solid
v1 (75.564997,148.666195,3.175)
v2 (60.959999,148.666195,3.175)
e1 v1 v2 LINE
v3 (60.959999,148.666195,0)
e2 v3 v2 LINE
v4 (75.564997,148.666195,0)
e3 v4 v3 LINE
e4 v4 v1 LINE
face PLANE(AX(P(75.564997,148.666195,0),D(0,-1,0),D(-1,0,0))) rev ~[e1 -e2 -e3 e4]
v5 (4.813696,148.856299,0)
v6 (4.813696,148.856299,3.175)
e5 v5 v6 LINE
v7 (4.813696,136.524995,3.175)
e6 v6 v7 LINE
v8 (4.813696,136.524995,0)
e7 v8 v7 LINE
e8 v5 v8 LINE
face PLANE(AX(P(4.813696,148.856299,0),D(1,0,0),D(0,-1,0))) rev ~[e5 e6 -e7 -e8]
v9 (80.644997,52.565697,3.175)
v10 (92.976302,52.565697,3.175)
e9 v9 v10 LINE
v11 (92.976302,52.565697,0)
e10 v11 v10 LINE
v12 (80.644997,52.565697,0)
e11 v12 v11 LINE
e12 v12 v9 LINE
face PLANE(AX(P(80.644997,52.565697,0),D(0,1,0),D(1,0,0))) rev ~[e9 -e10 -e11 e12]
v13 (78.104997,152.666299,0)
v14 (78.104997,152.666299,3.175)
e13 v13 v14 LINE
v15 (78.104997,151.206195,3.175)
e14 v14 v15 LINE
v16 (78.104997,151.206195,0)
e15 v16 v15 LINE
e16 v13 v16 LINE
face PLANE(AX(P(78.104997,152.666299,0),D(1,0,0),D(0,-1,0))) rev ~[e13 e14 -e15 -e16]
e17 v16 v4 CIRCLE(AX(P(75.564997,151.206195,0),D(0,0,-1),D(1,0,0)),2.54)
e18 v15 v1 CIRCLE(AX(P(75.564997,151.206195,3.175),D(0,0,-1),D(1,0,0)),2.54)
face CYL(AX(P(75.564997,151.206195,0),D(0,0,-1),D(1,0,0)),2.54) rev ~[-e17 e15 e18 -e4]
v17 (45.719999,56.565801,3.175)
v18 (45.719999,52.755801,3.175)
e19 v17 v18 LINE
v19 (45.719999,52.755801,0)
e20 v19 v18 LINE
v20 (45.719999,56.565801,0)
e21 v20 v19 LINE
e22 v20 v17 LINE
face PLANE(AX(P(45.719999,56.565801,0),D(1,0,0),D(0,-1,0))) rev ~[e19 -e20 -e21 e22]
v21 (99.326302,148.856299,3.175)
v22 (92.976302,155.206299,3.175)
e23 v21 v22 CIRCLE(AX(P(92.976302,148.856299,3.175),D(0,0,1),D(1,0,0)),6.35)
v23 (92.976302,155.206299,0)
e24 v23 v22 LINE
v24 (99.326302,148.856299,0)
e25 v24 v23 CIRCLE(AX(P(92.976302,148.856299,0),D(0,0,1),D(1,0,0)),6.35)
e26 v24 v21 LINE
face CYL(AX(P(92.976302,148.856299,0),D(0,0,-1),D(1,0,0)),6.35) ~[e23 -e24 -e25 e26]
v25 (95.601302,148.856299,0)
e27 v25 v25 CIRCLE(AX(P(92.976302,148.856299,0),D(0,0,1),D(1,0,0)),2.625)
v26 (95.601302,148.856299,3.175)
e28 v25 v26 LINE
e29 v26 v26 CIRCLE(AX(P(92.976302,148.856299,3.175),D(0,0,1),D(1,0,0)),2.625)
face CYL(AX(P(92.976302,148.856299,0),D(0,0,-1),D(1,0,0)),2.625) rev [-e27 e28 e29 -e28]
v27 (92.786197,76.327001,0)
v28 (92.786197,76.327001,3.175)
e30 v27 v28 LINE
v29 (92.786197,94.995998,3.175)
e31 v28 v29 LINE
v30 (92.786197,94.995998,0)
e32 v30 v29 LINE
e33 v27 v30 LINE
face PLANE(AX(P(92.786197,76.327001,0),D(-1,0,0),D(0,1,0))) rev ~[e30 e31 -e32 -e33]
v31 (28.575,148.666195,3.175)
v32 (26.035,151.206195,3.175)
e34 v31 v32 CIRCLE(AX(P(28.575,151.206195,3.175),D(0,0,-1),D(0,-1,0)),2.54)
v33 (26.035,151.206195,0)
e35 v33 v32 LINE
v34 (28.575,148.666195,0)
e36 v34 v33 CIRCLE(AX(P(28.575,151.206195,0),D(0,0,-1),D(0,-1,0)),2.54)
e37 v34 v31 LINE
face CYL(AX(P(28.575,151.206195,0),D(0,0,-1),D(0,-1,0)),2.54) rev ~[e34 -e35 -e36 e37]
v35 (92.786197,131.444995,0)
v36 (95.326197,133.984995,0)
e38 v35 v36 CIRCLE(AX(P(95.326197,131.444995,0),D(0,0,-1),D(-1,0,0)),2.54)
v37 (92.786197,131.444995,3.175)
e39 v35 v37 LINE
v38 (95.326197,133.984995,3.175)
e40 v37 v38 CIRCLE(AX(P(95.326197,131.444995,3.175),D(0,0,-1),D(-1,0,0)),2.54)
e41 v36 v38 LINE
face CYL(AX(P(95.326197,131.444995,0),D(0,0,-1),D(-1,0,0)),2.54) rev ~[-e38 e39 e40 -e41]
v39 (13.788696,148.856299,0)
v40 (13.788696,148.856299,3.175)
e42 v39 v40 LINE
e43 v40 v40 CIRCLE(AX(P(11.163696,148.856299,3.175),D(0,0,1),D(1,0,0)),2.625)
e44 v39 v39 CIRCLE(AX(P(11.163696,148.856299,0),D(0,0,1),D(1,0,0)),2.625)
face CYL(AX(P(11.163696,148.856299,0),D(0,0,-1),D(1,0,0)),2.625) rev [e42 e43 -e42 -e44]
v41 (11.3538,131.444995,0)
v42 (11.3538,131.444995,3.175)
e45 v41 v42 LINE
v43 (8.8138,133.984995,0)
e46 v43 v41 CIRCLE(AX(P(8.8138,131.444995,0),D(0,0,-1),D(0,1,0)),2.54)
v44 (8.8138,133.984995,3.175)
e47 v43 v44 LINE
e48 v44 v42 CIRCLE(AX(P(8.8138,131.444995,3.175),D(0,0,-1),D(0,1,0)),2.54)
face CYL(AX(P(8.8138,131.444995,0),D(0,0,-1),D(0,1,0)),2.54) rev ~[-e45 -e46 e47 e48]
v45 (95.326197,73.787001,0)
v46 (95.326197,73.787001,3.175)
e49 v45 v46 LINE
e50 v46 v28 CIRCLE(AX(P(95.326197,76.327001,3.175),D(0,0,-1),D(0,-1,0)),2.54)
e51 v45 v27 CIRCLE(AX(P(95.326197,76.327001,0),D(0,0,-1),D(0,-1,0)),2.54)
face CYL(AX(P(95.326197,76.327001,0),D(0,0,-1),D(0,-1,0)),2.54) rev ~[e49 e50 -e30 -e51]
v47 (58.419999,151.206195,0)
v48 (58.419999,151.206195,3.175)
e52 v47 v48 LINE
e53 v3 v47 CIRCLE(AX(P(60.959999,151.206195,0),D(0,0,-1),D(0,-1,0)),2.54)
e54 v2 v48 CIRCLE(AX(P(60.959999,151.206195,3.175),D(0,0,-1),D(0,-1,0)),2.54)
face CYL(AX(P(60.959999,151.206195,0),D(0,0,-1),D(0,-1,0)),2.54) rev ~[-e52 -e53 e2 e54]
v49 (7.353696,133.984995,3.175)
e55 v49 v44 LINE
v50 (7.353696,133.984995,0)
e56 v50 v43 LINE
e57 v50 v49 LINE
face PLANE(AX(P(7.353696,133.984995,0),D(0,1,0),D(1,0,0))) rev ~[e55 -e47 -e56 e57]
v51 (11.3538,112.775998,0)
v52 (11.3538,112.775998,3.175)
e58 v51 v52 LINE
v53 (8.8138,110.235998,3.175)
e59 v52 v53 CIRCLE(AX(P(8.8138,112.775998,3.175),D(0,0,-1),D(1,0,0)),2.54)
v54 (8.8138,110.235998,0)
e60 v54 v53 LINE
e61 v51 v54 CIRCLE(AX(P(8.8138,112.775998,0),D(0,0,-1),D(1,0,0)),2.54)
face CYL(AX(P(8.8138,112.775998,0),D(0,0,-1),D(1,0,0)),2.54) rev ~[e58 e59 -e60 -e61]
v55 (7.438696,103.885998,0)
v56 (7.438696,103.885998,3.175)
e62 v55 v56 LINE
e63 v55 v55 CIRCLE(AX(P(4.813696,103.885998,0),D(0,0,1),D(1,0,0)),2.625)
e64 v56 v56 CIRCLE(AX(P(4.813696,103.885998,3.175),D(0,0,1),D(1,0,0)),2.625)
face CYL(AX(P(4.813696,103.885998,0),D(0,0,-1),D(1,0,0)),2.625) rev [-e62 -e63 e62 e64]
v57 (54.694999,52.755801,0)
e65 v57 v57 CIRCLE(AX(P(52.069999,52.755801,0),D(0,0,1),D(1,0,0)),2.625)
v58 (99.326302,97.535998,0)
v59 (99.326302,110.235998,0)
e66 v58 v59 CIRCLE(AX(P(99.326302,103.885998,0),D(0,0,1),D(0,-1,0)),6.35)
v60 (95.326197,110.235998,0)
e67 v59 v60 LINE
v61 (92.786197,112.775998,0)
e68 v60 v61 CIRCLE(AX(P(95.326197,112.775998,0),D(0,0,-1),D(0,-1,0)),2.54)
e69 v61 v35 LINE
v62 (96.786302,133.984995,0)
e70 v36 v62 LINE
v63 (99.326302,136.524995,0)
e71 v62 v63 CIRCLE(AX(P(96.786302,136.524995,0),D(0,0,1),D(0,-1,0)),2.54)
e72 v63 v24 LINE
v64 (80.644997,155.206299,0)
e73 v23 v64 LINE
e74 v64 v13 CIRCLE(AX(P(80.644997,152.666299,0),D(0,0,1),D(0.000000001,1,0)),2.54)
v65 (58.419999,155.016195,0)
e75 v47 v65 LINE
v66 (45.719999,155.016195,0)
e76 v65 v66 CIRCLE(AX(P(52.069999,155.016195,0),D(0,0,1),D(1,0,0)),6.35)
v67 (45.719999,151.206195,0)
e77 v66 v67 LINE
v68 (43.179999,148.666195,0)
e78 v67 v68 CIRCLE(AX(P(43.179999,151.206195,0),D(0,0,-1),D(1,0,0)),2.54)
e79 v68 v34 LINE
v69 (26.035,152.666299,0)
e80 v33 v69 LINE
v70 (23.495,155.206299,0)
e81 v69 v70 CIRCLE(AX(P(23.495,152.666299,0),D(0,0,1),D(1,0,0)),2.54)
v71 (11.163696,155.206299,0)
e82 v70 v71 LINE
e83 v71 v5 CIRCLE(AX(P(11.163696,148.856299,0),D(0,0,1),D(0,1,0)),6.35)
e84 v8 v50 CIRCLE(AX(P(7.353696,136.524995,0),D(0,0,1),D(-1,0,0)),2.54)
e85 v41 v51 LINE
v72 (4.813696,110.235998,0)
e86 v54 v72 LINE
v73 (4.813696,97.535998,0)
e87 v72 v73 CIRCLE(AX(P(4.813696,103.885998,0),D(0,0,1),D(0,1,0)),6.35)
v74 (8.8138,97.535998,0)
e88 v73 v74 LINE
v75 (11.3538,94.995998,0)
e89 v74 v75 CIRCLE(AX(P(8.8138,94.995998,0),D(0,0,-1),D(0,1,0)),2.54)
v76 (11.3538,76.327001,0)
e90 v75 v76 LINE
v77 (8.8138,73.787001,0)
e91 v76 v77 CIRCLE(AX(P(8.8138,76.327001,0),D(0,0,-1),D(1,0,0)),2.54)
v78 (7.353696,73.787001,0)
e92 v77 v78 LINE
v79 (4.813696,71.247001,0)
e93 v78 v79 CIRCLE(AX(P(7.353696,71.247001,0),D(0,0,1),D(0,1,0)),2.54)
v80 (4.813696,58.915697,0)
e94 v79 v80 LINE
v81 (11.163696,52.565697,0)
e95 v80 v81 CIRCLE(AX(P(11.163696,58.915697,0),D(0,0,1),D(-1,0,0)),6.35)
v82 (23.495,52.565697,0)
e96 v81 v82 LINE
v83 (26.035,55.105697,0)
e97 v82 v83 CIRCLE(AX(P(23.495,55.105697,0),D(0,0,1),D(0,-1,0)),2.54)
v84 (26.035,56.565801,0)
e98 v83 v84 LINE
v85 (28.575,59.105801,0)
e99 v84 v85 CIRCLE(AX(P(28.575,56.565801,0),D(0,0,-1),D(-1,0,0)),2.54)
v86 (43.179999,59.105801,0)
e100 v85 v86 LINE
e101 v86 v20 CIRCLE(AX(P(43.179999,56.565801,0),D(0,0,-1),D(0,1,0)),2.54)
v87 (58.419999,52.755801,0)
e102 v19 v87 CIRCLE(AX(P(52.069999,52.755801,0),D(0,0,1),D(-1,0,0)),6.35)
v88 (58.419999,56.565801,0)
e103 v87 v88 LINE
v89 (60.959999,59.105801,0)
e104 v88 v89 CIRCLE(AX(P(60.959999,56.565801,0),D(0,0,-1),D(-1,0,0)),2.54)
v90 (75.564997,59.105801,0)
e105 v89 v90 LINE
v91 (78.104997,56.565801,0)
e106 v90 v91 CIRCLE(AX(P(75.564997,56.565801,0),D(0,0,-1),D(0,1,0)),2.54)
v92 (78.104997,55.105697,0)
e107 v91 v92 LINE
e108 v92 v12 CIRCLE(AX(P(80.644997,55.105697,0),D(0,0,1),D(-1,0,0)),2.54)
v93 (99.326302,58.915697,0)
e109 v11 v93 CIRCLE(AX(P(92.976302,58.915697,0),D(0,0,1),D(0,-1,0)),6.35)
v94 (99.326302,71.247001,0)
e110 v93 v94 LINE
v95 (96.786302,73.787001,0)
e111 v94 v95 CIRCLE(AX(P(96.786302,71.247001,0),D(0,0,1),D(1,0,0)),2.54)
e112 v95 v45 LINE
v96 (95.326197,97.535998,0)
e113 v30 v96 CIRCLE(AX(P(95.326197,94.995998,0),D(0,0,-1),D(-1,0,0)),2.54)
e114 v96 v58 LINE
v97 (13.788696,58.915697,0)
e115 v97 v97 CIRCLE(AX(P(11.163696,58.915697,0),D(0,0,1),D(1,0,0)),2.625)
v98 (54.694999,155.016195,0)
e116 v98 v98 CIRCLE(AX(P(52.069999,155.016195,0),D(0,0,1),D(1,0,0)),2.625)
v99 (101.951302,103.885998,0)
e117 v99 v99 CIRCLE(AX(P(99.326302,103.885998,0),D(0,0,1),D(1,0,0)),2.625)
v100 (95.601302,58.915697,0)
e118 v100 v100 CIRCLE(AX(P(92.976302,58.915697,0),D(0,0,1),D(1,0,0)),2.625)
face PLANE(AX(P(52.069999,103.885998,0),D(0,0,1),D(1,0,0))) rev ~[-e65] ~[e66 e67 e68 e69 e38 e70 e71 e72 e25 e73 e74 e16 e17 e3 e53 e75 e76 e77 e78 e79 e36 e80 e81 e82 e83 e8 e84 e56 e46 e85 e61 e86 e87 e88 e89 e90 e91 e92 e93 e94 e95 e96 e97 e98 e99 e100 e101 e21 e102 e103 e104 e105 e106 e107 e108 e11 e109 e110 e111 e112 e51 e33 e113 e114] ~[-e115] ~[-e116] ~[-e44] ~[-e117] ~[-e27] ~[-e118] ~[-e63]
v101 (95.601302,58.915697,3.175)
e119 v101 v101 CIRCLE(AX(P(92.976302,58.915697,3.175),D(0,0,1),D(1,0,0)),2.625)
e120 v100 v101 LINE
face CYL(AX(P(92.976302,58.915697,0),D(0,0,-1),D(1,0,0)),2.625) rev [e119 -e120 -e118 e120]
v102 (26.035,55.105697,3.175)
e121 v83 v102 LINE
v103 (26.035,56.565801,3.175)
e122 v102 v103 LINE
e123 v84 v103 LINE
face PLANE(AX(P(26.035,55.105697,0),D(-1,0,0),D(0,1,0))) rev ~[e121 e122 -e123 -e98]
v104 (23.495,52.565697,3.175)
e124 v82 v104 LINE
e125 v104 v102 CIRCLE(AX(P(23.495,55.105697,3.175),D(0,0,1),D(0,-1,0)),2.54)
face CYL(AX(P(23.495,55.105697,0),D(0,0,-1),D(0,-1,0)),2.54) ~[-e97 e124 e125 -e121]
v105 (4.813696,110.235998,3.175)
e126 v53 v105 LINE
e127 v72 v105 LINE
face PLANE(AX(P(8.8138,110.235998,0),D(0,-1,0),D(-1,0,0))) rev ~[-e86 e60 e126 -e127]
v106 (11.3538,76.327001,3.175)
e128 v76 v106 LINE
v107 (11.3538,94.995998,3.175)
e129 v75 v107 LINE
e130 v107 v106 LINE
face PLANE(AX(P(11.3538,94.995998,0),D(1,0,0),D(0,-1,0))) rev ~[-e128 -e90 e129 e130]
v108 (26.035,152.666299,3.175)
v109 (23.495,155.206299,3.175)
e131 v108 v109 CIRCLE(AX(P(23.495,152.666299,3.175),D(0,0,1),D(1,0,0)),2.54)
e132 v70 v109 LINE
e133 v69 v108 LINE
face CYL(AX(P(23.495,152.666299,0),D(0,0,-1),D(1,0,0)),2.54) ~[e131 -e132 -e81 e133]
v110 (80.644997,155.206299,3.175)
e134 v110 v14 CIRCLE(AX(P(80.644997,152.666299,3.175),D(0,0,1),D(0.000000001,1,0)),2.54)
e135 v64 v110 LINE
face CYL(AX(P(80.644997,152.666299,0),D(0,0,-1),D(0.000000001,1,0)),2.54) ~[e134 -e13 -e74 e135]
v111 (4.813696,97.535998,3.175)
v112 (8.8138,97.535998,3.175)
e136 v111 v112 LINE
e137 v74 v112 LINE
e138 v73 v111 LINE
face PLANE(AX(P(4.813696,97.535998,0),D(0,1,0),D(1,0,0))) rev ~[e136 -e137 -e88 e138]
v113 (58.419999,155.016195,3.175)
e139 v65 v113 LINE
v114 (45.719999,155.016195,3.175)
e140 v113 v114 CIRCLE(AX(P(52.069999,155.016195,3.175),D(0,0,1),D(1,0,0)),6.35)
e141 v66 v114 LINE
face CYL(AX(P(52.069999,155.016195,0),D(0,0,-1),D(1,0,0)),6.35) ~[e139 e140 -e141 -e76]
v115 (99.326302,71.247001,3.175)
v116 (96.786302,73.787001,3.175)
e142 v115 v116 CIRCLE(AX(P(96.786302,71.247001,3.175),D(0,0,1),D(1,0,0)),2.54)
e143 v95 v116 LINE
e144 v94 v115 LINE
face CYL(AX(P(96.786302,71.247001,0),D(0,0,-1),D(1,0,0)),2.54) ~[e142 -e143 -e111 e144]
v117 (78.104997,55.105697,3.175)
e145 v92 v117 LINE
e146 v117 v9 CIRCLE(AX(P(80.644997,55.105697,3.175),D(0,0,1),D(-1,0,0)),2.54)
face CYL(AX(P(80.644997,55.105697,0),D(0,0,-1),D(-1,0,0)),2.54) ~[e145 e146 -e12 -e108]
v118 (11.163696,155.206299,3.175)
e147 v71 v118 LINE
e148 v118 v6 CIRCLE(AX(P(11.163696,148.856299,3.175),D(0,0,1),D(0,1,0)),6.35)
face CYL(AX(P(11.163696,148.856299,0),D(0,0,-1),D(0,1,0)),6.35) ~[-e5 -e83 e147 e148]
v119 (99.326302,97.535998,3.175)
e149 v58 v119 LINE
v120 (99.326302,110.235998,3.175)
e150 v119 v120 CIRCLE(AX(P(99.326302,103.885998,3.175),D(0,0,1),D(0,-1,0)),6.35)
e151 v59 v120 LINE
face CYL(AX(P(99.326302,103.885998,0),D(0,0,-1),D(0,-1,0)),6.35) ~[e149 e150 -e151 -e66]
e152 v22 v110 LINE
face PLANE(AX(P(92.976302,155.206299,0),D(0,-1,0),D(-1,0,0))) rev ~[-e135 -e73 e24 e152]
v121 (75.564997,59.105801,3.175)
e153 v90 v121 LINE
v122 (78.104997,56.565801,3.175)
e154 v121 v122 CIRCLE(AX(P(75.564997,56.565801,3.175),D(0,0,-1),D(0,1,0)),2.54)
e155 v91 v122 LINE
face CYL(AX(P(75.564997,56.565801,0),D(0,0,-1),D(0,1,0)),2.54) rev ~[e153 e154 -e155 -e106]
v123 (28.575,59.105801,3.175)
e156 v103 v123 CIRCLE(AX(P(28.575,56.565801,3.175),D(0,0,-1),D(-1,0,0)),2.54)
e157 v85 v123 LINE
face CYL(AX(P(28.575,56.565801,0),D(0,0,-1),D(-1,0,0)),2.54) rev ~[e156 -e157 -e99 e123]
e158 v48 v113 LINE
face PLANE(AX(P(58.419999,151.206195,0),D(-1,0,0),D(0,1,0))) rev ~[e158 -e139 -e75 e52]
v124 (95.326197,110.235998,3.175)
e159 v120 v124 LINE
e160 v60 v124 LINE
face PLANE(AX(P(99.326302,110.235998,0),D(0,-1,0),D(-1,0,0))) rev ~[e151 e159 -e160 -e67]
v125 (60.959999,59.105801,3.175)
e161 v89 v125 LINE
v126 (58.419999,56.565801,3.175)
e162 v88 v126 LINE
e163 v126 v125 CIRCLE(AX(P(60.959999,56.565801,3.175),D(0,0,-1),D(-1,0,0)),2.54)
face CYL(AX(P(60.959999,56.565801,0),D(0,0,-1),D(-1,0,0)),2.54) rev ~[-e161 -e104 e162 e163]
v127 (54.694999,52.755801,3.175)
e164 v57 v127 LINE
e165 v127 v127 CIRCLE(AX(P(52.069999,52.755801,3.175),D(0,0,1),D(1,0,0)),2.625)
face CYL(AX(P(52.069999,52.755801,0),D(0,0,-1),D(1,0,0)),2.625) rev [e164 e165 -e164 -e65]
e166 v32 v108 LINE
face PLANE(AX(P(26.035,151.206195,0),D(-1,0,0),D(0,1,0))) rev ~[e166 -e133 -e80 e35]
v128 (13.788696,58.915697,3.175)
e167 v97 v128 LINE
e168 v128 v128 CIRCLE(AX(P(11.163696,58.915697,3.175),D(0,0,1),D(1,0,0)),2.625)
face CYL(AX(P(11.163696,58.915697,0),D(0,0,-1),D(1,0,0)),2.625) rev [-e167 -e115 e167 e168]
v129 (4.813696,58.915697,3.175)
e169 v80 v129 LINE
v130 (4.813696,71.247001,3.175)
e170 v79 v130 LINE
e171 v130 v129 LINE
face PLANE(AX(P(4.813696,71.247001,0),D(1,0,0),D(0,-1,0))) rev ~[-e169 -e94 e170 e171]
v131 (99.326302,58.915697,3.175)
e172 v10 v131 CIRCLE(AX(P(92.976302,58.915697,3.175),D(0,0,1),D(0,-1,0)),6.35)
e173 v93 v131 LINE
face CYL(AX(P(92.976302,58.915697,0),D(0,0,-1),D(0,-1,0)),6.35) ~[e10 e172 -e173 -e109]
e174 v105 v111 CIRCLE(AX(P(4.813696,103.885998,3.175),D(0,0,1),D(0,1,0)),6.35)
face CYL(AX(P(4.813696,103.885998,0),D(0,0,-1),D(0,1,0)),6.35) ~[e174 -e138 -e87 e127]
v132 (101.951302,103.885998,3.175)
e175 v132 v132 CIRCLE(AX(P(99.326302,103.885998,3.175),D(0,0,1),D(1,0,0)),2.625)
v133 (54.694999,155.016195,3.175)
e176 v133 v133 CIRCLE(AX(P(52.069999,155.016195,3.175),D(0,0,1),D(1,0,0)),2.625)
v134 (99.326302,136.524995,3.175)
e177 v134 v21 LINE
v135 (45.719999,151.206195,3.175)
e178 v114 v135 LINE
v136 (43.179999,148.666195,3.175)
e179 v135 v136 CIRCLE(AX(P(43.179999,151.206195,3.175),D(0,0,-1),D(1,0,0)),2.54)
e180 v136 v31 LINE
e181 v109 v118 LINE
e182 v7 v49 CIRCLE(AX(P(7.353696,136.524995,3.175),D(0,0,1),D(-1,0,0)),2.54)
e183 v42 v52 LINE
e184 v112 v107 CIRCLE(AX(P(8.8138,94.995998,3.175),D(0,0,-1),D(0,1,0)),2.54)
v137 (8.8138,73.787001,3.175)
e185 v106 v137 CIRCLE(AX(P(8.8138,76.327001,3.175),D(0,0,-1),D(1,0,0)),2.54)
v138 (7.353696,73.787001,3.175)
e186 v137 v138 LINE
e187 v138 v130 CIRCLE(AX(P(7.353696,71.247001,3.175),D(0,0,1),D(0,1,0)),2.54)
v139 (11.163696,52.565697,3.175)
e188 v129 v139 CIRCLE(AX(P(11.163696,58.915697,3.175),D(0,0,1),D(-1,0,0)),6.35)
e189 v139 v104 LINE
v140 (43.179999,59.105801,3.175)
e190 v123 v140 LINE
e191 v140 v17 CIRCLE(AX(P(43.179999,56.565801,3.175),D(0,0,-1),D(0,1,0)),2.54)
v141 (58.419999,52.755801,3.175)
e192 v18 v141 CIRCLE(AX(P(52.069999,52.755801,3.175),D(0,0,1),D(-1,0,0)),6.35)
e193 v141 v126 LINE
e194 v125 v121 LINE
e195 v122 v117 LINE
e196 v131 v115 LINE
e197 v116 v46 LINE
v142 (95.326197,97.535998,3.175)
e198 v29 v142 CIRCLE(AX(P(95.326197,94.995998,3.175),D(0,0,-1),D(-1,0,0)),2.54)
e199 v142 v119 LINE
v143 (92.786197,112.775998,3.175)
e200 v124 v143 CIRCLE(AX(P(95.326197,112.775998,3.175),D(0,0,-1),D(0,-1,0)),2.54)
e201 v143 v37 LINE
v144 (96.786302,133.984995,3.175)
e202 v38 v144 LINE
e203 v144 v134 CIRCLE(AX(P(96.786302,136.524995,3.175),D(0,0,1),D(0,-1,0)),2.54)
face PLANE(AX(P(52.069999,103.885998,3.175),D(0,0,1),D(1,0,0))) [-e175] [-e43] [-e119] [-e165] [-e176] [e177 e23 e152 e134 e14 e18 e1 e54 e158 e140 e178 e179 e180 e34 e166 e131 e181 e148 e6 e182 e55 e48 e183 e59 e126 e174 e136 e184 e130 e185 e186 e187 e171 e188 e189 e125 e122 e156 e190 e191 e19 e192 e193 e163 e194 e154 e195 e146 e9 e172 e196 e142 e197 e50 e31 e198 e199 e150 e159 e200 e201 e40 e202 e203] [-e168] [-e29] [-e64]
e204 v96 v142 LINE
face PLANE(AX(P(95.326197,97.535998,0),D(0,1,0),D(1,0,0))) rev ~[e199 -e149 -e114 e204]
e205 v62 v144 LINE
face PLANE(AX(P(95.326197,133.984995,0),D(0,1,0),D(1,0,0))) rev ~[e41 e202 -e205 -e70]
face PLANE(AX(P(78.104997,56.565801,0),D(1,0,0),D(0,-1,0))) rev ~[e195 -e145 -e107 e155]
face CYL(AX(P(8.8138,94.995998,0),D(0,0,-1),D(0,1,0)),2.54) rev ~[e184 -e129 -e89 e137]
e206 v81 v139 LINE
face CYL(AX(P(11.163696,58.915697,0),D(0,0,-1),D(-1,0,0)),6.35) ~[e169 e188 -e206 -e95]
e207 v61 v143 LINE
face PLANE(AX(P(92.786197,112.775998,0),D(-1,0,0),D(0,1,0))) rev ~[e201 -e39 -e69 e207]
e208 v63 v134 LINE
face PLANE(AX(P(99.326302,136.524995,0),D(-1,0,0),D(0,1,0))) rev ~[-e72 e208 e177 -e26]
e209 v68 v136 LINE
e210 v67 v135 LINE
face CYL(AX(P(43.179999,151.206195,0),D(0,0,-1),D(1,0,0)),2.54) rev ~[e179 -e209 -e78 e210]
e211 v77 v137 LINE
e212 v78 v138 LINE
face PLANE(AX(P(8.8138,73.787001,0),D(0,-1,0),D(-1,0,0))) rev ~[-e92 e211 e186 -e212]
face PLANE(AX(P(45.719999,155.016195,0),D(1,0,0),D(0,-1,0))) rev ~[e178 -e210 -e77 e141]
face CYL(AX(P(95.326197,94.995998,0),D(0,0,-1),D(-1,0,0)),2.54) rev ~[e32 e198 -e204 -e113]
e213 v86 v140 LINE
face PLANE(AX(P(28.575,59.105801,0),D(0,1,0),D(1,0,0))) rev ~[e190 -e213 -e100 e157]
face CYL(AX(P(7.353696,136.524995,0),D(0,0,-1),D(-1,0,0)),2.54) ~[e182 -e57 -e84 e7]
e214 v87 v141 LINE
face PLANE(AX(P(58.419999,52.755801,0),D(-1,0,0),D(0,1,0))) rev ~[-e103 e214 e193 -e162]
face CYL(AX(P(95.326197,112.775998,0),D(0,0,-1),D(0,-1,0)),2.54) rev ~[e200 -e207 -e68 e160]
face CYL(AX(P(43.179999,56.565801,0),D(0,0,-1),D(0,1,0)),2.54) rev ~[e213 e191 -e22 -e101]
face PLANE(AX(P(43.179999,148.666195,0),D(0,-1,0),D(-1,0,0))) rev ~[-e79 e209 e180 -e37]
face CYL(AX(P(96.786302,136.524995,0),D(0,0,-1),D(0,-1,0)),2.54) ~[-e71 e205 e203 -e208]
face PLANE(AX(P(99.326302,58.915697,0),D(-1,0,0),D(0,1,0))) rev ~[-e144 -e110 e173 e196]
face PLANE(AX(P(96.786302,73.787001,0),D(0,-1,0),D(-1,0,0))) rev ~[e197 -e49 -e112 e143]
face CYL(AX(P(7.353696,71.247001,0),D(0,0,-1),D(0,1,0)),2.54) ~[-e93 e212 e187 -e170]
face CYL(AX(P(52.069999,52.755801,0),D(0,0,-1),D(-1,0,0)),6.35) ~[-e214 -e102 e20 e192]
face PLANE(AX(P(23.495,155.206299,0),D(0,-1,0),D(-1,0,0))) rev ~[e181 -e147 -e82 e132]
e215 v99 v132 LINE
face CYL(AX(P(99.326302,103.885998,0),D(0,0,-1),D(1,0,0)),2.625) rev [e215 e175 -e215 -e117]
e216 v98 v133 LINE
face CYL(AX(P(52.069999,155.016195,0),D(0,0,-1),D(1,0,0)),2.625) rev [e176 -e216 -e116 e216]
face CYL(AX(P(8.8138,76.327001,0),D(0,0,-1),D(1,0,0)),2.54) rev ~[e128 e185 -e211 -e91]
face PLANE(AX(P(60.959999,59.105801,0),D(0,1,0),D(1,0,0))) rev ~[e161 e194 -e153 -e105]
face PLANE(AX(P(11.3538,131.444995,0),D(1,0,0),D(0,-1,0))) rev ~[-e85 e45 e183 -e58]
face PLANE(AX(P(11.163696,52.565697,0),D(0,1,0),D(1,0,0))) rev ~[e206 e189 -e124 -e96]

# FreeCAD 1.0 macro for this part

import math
import FreeCAD as App
import Part
import Sketcher
Q = App.Units.Quantity

doc = App.newDocument("Part")
body = doc.addObject("PartDesign::Body", "Body")

sketch1 = body.newObject("Sketcher::SketchObject", "Sketch")
sketch1.AttachmentSupport = (doc.getObject("XY_Plane"), [""])
sketch1.MapMode = "FlatFace"
sketch1.addGeometry(Part.LineSegment(App.Vector(4.813696, 148.856299, 0), App.Vector(4.813696, 136.524995, 0)), False)
sketch1.addGeometry(Part.ArcOfCircle(Part.Circle(App.Vector(7.353696, 136.524995, 0), App.Vector(0, 0, 1), 2.54), math.radians(-180), math.radians(-90)), False)
sketch1.addGeometry(Part.LineSegment(App.Vector(7.353696, 133.984995, 0), App.Vector(8.8138, 133.984995, 0)), False)
sketch1.addGeometry(Part.ArcOfCircle(Part.Circle(App.Vector(8.8138, 131.444995, 0), App.Vector(0, 0, 1), 2.54), math.radians(0), math.radians(90)), False)
sketch1.addGeometry(Part.LineSegment(App.Vector(11.3538, 131.444995, 0), App.Vector(11.3538, 112.775998, 0)), False)
sketch1.addGeometry(Part.ArcOfCircle(Part.Circle(App.Vector(8.8138, 112.775998, 0), App.Vector(0, 0, 1), 2.54), math.radians(-90), math.radians(0)), False)
sketch1.addGeometry(Part.LineSegment(App.Vector(8.8138, 110.235998, 0), App.Vector(4.813696, 110.235998, 0)), False)
sketch1.addGeometry(Part.ArcOfCircle(Part.Circle(App.Vector(4.813696, 103.885998, 0), App.Vector(0, 0, 1), 6.35), math.radians(90), math.radians(270)), False)
sketch1.addGeometry(Part.LineSegment(App.Vector(4.813696, 97.535998, 0), App.Vector(8.8138, 97.535998, 0)), False)
sketch1.addGeometry(Part.ArcOfCircle(Part.Circle(App.Vector(8.8138, 94.995998, 0), App.Vector(0, 0, 1), 2.54), math.radians(0), math.radians(90)), False)
sketch1.addGeometry(Part.LineSegment(App.Vector(11.3538, 94.995998, 0), App.Vector(11.3538, 76.327001, 0)), False)
sketch1.addGeometry(Part.ArcOfCircle(Part.Circle(App.Vector(8.8138, 76.327001, 0), App.Vector(0, 0, 1), 2.54), math.radians(-90), math.radians(0)), False)
sketch1.addGeometry(Part.LineSegment(App.Vector(8.8138, 73.787001, 0), App.Vector(7.353696, 73.787001, 0)), False)
sketch1.addGeometry(Part.ArcOfCircle(Part.Circle(App.Vector(7.353696, 71.247001, 0), App.Vector(0, 0, 1), 2.54), math.radians(90), math.radians(180)), False)
sketch1.addGeometry(Part.LineSegment(App.Vector(4.813696, 71.247001, 0), App.Vector(4.813696, 58.915697, 0)), False)
sketch1.addGeometry(Part.ArcOfCircle(Part.Circle(App.Vector(11.163696, 58.915697, 0), App.Vector(0, 0, 1), 6.35), math.radians(180), math.radians(270)), False)
sketch1.addGeometry(Part.LineSegment(App.Vector(11.163696, 52.565697, 0), App.Vector(23.495, 52.565697, 0)), False)
sketch1.addGeometry(Part.ArcOfCircle(Part.Circle(App.Vector(23.495, 55.105697, 0), App.Vector(0, 0, 1), 2.54), math.radians(-90), math.radians(0)), False)
sketch1.addGeometry(Part.LineSegment(App.Vector(26.035, 55.105697, 0), App.Vector(26.035, 56.565801, 0)), False)
sketch1.addGeometry(Part.ArcOfCircle(Part.Circle(App.Vector(28.575, 56.565801, 0), App.Vector(0, 0, 1), 2.54), math.radians(90), math.radians(180)), False)
sketch1.addGeometry(Part.LineSegment(App.Vector(28.575, 59.105801, 0), App.Vector(43.179999, 59.105801, 0)), False)
sketch1.addGeometry(Part.ArcOfCircle(Part.Circle(App.Vector(43.179999, 56.565801, 0), App.Vector(0, 0, 1), 2.54), math.radians(0), math.radians(90)), False)
sketch1.addGeometry(Part.LineSegment(App.Vector(45.719999, 56.565801, 0), App.Vector(45.719999, 52.755801, 0)), False)
sketch1.addGeometry(Part.ArcOfCircle(Part.Circle(App.Vector(52.069999, 52.755801, 0), App.Vector(0, 0, 1), 6.35), math.radians(180), math.radians(360)), False)
sketch1.addGeometry(Part.LineSegment(App.Vector(58.419999, 52.755801, 0), App.Vector(58.419999, 56.565801, 0)), False)
sketch1.addGeometry(Part.ArcOfCircle(Part.Circle(App.Vector(60.959999, 56.565801, 0), App.Vector(0, 0, 1), 2.54), math.radians(90), math.radians(180)), False)
sketch1.addGeometry(Part.LineSegment(App.Vector(60.959999, 59.105801, 0), App.Vector(75.564997, 59.105801, 0)), False)
sketch1.addGeometry(Part.ArcOfCircle(Part.Circle(App.Vector(75.564997, 56.565801, 0), App.Vector(0, 0, 1), 2.54), math.radians(0), math.radians(90)), False)
sketch1.addGeometry(Part.LineSegment(App.Vector(78.104997, 56.565801, 0), App.Vector(78.104997, 55.105697, 0)), False)
sketch1.addGeometry(Part.ArcOfCircle(Part.Circle(App.Vector(80.644997, 55.105697, 0), App.Vector(0, 0, 1), 2.54), math.radians(180), math.radians(270)), False)
sketch1.addGeometry(Part.LineSegment(App.Vector(80.644997, 52.565697, 0), App.Vector(92.976302, 52.565697, 0)), False)
sketch1.addGeometry(Part.ArcOfCircle(Part.Circle(App.Vector(92.976302, 58.915697, 0), App.Vector(0, 0, 1), 6.35), math.radians(-90), math.radians(0)), False)
sketch1.addGeometry(Part.LineSegment(App.Vector(99.326302, 58.915697, 0), App.Vector(99.326302, 71.247001, 0)), False)
sketch1.addGeometry(Part.ArcOfCircle(Part.Circle(App.Vector(96.786302, 71.247001, 0), App.Vector(0, 0, 1), 2.54), math.radians(0), math.radians(90)), False)
sketch1.addGeometry(Part.LineSegment(App.Vector(96.786302, 73.787001, 0), App.Vector(95.326197, 73.787001, 0)), False)
sketch1.addGeometry(Part.ArcOfCircle(Part.Circle(App.Vector(95.326197, 76.327001, 0), App.Vector(0, 0, 1), 2.54), math.radians(180), math.radians(270)), False)
sketch1.addGeometry(Part.LineSegment(App.Vector(92.786197, 76.327001, 0), App.Vector(92.786197, 94.995998, 0)), False)
sketch1.addGeometry(Part.ArcOfCircle(Part.Circle(App.Vector(95.326197, 94.995998, 0), App.Vector(0, 0, 1), 2.54), math.radians(90), math.radians(180)), False)
sketch1.addGeometry(Part.LineSegment(App.Vector(95.326197, 97.535998, 0), App.Vector(99.326302, 97.535998, 0)), False)
sketch1.addGeometry(Part.ArcOfCircle(Part.Circle(App.Vector(99.326302, 103.885998, 0), App.Vector(0, 0, 1), 6.35), math.radians(-90), math.radians(90)), False)
sketch1.addGeometry(Part.LineSegment(App.Vector(99.326302, 110.235998, 0), App.Vector(95.326197, 110.235998, 0)), False)
sketch1.addGeometry(Part.ArcOfCircle(Part.Circle(App.Vector(95.326197, 112.775998, 0), App.Vector(0, 0, 1), 2.54), math.radians(180), math.radians(270)), False)
sketch1.addGeometry(Part.LineSegment(App.Vector(92.786197, 112.775998, 0), App.Vector(92.786197, 131.444995, 0)), False)
sketch1.addGeometry(Part.ArcOfCircle(Part.Circle(App.Vector(95.326197, 131.444995, 0), App.Vector(0, 0, 1), 2.54), math.radians(90), math.radians(180)), False)
sketch1.addGeometry(Part.LineSegment(App.Vector(95.326197, 133.984995, 0), App.Vector(96.786302, 133.984995, 0)), False)
sketch1.addGeometry(Part.ArcOfCircle(Part.Circle(App.Vector(96.786302, 136.524995, 0), App.Vector(0, 0, 1), 2.54), math.radians(-90), math.radians(0)), False)
sketch1.addGeometry(Part.LineSegment(App.Vector(99.326302, 136.524995, 0), App.Vector(99.326302, 148.856299, 0)), False)
sketch1.addGeometry(Part.ArcOfCircle(Part.Circle(App.Vector(92.976302, 148.856299, 0), App.Vector(0, 0, 1), 6.35), math.radians(0), math.radians(90)), False)
sketch1.addGeometry(Part.LineSegment(App.Vector(92.976302, 155.206299, 0), App.Vector(80.644997, 155.206299, 0)), False)
sketch1.addGeometry(Part.ArcOfCircle(Part.Circle(App.Vector(80.644997, 152.666299, 0), App.Vector(0, 0, 1), 2.54), math.radians(90), math.radians(180)), False)
sketch1.addGeometry(Part.LineSegment(App.Vector(78.104997, 152.666299, 0), App.Vector(78.104997, 151.206195, 0)), False)
sketch1.addGeometry(Part.ArcOfCircle(Part.Circle(App.Vector(75.564997, 151.206195, 0), App.Vector(0, 0, 1), 2.54), math.radians(-90), math.radians(0)), False)
sketch1.addGeometry(Part.LineSegment(App.Vector(75.564997, 148.666195, 0), App.Vector(60.959999, 148.666195, 0)), False)
sketch1.addGeometry(Part.ArcOfCircle(Part.Circle(App.Vector(60.959999, 151.206195, 0), App.Vector(0, 0, 1), 2.54), math.radians(-180), math.radians(-90)), False)
sketch1.addGeometry(Part.LineSegment(App.Vector(58.419999, 151.206195, 0), App.Vector(58.419999, 155.016195, 0)), False)
sketch1.addGeometry(Part.ArcOfCircle(Part.Circle(App.Vector(52.069999, 155.016195, 0), App.Vector(0, 0, 1), 6.35), math.radians(0), math.radians(180)), False)
sketch1.addGeometry(Part.LineSegment(App.Vector(45.719999, 155.016195, 0), App.Vector(45.719999, 151.206195, 0)), False)
sketch1.addGeometry(Part.ArcOfCircle(Part.Circle(App.Vector(43.179999, 151.206195, 0), App.Vector(0, 0, 1), 2.54), math.radians(-90), math.radians(0)), False)
sketch1.addGeometry(Part.LineSegment(App.Vector(43.179999, 148.666195, 0), App.Vector(28.575, 148.666195, 0)), False)
sketch1.addGeometry(Part.ArcOfCircle(Part.Circle(App.Vector(28.575, 151.206195, 0), App.Vector(0, 0, 1), 2.54), math.radians(-180), math.radians(-90)), False)
sketch1.addGeometry(Part.LineSegment(App.Vector(26.035, 151.206195, 0), App.Vector(26.035, 152.666299, 0)), False)
sketch1.addGeometry(Part.ArcOfCircle(Part.Circle(App.Vector(23.495, 152.666299, 0), App.Vector(0, 0, 1), 2.54), math.radians(0), math.radians(90)), False)
sketch1.addGeometry(Part.LineSegment(App.Vector(23.495, 155.206299, 0), App.Vector(11.163696, 155.206299, 0)), False)
sketch1.addGeometry(Part.ArcOfCircle(Part.Circle(App.Vector(11.163696, 148.856299, 0), App.Vector(0, 0, 1), 6.35), math.radians(90), math.radians(180)), False)
sketch1.addGeometry(Part.Circle(App.Vector(11.163696, 58.915697, 0), App.Vector(0, 0, 1), 2.625), False)
sketch1.addGeometry(Part.Circle(App.Vector(4.813696, 103.885998, 0), App.Vector(0, 0, 1), 2.625), False)
sketch1.addGeometry(Part.Circle(App.Vector(52.069999, 52.755801, 0), App.Vector(0, 0, 1), 2.625), False)
sketch1.addGeometry(Part.Circle(App.Vector(92.976302, 58.915697, 0), App.Vector(0, 0, 1), 2.625), False)
sketch1.addGeometry(Part.Circle(App.Vector(99.326302, 103.885998, 0), App.Vector(0, 0, 1), 2.625), False)
sketch1.addGeometry(Part.Circle(App.Vector(11.163696, 148.856299, 0), App.Vector(0, 0, 1), 2.625), False)
sketch1.addGeometry(Part.Circle(App.Vector(52.069999, 155.016195, 0), App.Vector(0, 0, 1), 2.625), False)
sketch1.addGeometry(Part.Circle(App.Vector(92.976302, 148.856299, 0), App.Vector(0, 0, 1), 2.625), False)
sketch1.addConstraint(Sketcher.Constraint("Tangent", 0, 2, 1, 1))
sketch1.addConstraint(Sketcher.Constraint("Tangent", 1, 2, 2, 1))
sketch1.addConstraint(Sketcher.Constraint("Tangent", 2, 2, 3, 2))
sketch1.addConstraint(Sketcher.Constraint("Tangent", 3, 1, 4, 1))
sketch1.addConstraint(Sketcher.Constraint("Tangent", 4, 2, 5, 2))
sketch1.addConstraint(Sketcher.Constraint("Tangent", 5, 1, 6, 1))
sketch1.addConstraint(Sketcher.Constraint("Tangent", 6, 2, 7, 1))
sketch1.addConstraint(Sketcher.Constraint("Tangent", 7, 2, 8, 1))
sketch1.addConstraint(Sketcher.Constraint("Tangent", 8, 2, 9, 2))
sketch1.addConstraint(Sketcher.Constraint("Tangent", 9, 1, 10, 1))
sketch1.addConstraint(Sketcher.Constraint("Tangent", 10, 2, 11, 2))
sketch1.addConstraint(Sketcher.Constraint("Tangent", 11, 1, 12, 1))
sketch1.addConstraint(Sketcher.Constraint("Tangent", 12, 2, 13, 1))
sketch1.addConstraint(Sketcher.Constraint("Tangent", 13, 2, 14, 1))
sketch1.addConstraint(Sketcher.Constraint("Tangent", 14, 2, 15, 1))
sketch1.addConstraint(Sketcher.Constraint("Tangent", 15, 2, 16, 1))
sketch1.addConstraint(Sketcher.Constraint("Tangent", 16, 2, 17, 1))
sketch1.addConstraint(Sketcher.Constraint("Tangent", 17, 2, 18, 1))
sketch1.addConstraint(Sketcher.Constraint("Tangent", 18, 2, 19, 2))
sketch1.addConstraint(Sketcher.Constraint("Tangent", 19, 1, 20, 1))
sketch1.addConstraint(Sketcher.Constraint("Tangent", 20, 2, 21, 2))
sketch1.addConstraint(Sketcher.Constraint("Tangent", 21, 1, 22, 1))
sketch1.addConstraint(Sketcher.Constraint("Tangent", 22, 2, 23, 1))
sketch1.addConstraint(Sketcher.Constraint("Tangent", 23, 2, 24, 1))
sketch1.addConstraint(Sketcher.Constraint("Tangent", 24, 2, 25, 2))
sketch1.addConstraint(Sketcher.Constraint("Tangent", 25, 1, 26, 1))
sketch1.addConstraint(Sketcher.Constraint("Tangent", 26, 2, 27, 2))
sketch1.addConstraint(Sketcher.Constraint("Tangent", 27, 1, 28, 1))
sketch1.addConstraint(Sketcher.Constraint("Tangent", 28, 2, 29, 1))
sketch1.addConstraint(Sketcher.Constraint("Tangent", 29, 2, 30, 1))
sketch1.addConstraint(Sketcher.Constraint("Tangent", 30, 2, 31, 1))
sketch1.addConstraint(Sketcher.Constraint("Tangent", 31, 2, 32, 1))
sketch1.addConstraint(Sketcher.Constraint("Tangent", 32, 2, 33, 1))
sketch1.addConstraint(Sketcher.Constraint("Tangent", 33, 2, 34, 1))
sketch1.addConstraint(Sketcher.Constraint("Tangent", 34, 2, 35, 2))
sketch1.addConstraint(Sketcher.Constraint("Tangent", 35, 1, 36, 1))
sketch1.addConstraint(Sketcher.Constraint("Tangent", 36, 2, 37, 2))
sketch1.addConstraint(Sketcher.Constraint("Tangent", 37, 1, 38, 1))
sketch1.addConstraint(Sketcher.Constraint("Tangent", 38, 2, 39, 1))
sketch1.addConstraint(Sketcher.Constraint("Tangent", 39, 2, 40, 1))
sketch1.addConstraint(Sketcher.Constraint("Tangent", 40, 2, 41, 2))
sketch1.addConstraint(Sketcher.Constraint("Tangent", 41, 1, 42, 1))
sketch1.addConstraint(Sketcher.Constraint("Tangent", 42, 2, 43, 2))
sketch1.addConstraint(Sketcher.Constraint("Tangent", 43, 1, 44, 1))
sketch1.addConstraint(Sketcher.Constraint("Tangent", 44, 2, 45, 1))
sketch1.addConstraint(Sketcher.Constraint("Tangent", 45, 2, 46, 1))
sketch1.addConstraint(Sketcher.Constraint("Tangent", 46, 2, 47, 1))
sketch1.addConstraint(Sketcher.Constraint("Tangent", 47, 2, 48, 1))
sketch1.addConstraint(Sketcher.Constraint("Tangent", 48, 2, 49, 1))
sketch1.addConstraint(Sketcher.Constraint("Tangent", 49, 2, 50, 1))
sketch1.addConstraint(Sketcher.Constraint("Tangent", 50, 2, 51, 2))
sketch1.addConstraint(Sketcher.Constraint("Tangent", 51, 1, 52, 1))
sketch1.addConstraint(Sketcher.Constraint("Tangent", 52, 2, 53, 2))
sketch1.addConstraint(Sketcher.Constraint("Tangent", 53, 1, 54, 1))
sketch1.addConstraint(Sketcher.Constraint("Tangent", 54, 2, 55, 1))
sketch1.addConstraint(Sketcher.Constraint("Tangent", 55, 2, 56, 1))
sketch1.addConstraint(Sketcher.Constraint("Tangent", 56, 2, 57, 2))
sketch1.addConstraint(Sketcher.Constraint("Tangent", 57, 1, 58, 1))
sketch1.addConstraint(Sketcher.Constraint("Tangent", 58, 2, 59, 2))
sketch1.addConstraint(Sketcher.Constraint("Tangent", 59, 1, 60, 1))
sketch1.addConstraint(Sketcher.Constraint("Tangent", 60, 2, 61, 1))
sketch1.addConstraint(Sketcher.Constraint("Tangent", 61, 2, 62, 1))
sketch1.addConstraint(Sketcher.Constraint("Tangent", 62, 2, 63, 1))
sketch1.addConstraint(Sketcher.Constraint("Tangent", 63, 2, 0, 1))
sketch1.addConstraint(Sketcher.Constraint("Vertical", 0))
sketch1.addConstraint(Sketcher.Constraint("Horizontal", 2))
sketch1.addConstraint(Sketcher.Constraint("Vertical", 4))
sketch1.addConstraint(Sketcher.Constraint("Horizontal", 6))
sketch1.addConstraint(Sketcher.Constraint("Horizontal", 8))
sketch1.addConstraint(Sketcher.Constraint("Vertical", 10))
sketch1.addConstraint(Sketcher.Constraint("Horizontal", 12))
sketch1.addConstraint(Sketcher.Constraint("Vertical", 14))
sketch1.addConstraint(Sketcher.Constraint("Horizontal", 16))
sketch1.addConstraint(Sketcher.Constraint("Vertical", 18))
sketch1.addConstraint(Sketcher.Constraint("Horizontal", 20))
sketch1.addConstraint(Sketcher.Constraint("Vertical", 22))
sketch1.addConstraint(Sketcher.Constraint("Vertical", 24))
sketch1.addConstraint(Sketcher.Constraint("Horizontal", 26))
sketch1.addConstraint(Sketcher.Constraint("Vertical", 28))
sketch1.addConstraint(Sketcher.Constraint("Horizontal", 30))
sketch1.addConstraint(Sketcher.Constraint("Vertical", 32))
sketch1.addConstraint(Sketcher.Constraint("Horizontal", 34))
sketch1.addConstraint(Sketcher.Constraint("Vertical", 36))
sketch1.addConstraint(Sketcher.Constraint("Horizontal", 38))
sketch1.addConstraint(Sketcher.Constraint("Horizontal", 40))
sketch1.addConstraint(Sketcher.Constraint("Vertical", 42))
sketch1.addConstraint(Sketcher.Constraint("Horizontal", 44))
sketch1.addConstraint(Sketcher.Constraint("Vertical", 46))
sketch1.addConstraint(Sketcher.Constraint("Horizontal", 48))
sketch1.addConstraint(Sketcher.Constraint("Vertical", 50))
sketch1.addConstraint(Sketcher.Constraint("Horizontal", 52))
sketch1.addConstraint(Sketcher.Constraint("Vertical", 54))
sketch1.addConstraint(Sketcher.Constraint("Vertical", 56))
sketch1.addConstraint(Sketcher.Constraint("Horizontal", 58))
sketch1.addConstraint(Sketcher.Constraint("Vertical", 60))
sketch1.addConstraint(Sketcher.Constraint("Horizontal", 62))
sketch1.addConstraint(Sketcher.Constraint("Coincident", 64, 3, 15, 3))
sketch1.addConstraint(Sketcher.Constraint("Coincident", 65, 3, 7, 3))
sketch1.addConstraint(Sketcher.Constraint("Coincident", 66, 3, 23, 3))
sketch1.addConstraint(Sketcher.Constraint("Coincident", 67, 3, 31, 3))
sketch1.addConstraint(Sketcher.Constraint("Coincident", 68, 3, 39, 3))
sketch1.addConstraint(Sketcher.Constraint("Coincident", 69, 3, 63, 3))
sketch1.addConstraint(Sketcher.Constraint("Coincident", 70, 3, 55, 3))
sketch1.addConstraint(Sketcher.Constraint("Coincident", 71, 3, 47, 3))
sketch1.addConstraint(Sketcher.Constraint("Equal", 1, 3))
sketch1.addConstraint(Sketcher.Constraint("Equal", 3, 5))
sketch1.addConstraint(Sketcher.Constraint("Equal", 5, 9))
sketch1.addConstraint(Sketcher.Constraint("Equal", 9, 11))
sketch1.addConstraint(Sketcher.Constraint("Equal", 11, 13))
sketch1.addConstraint(Sketcher.Constraint("Equal", 7, 15))
sketch1.addConstraint(Sketcher.Constraint("Equal", 13, 17))
sketch1.addConstraint(Sketcher.Constraint("Equal", 17, 19))
sketch1.addConstraint(Sketcher.Constraint("Equal", 19, 21))
sketch1.addConstraint(Sketcher.Constraint("Equal", 15, 23))
sketch1.addConstraint(Sketcher.Constraint("Equal", 21, 25))
sketch1.addConstraint(Sketcher.Constraint("Equal", 25, 27))
sketch1.addConstraint(Sketcher.Constraint("Equal", 27, 29))
sketch1.addConstraint(Sketcher.Constraint("Equal", 23, 31))
sketch1.addConstraint(Sketcher.Constraint("Equal", 29, 33))
sketch1.addConstraint(Sketcher.Constraint("Equal", 33, 35))
sketch1.addConstraint(Sketcher.Constraint("Equal", 35, 37))
sketch1.addConstraint(Sketcher.Constraint("Equal", 31, 39))
sketch1.addConstraint(Sketcher.Constraint("Equal", 37, 41))
sketch1.addConstraint(Sketcher.Constraint("Equal", 41, 43))
sketch1.addConstraint(Sketcher.Constraint("Equal", 43, 45))
sketch1.addConstraint(Sketcher.Constraint("Equal", 39, 47))
sketch1.addConstraint(Sketcher.Constraint("Equal", 45, 49))
sketch1.addConstraint(Sketcher.Constraint("Equal", 49, 51))
sketch1.addConstraint(Sketcher.Constraint("Equal", 51, 53))
sketch1.addConstraint(Sketcher.Constraint("Equal", 47, 55))
sketch1.addConstraint(Sketcher.Constraint("Equal", 53, 57))
sketch1.addConstraint(Sketcher.Constraint("Equal", 57, 59))
sketch1.addConstraint(Sketcher.Constraint("Equal", 59, 61))
sketch1.addConstraint(Sketcher.Constraint("Equal", 55, 63))
sketch1.addConstraint(Sketcher.Constraint("Equal", 64, 65))
sketch1.addConstraint(Sketcher.Constraint("Equal", 65, 66))
sketch1.addConstraint(Sketcher.Constraint("Equal", 66, 67))
sketch1.addConstraint(Sketcher.Constraint("Equal", 67, 68))
sketch1.addConstraint(Sketcher.Constraint("Equal", 68, 69))
sketch1.addConstraint(Sketcher.Constraint("Equal", 69, 70))
sketch1.addConstraint(Sketcher.Constraint("Equal", 70, 71))
sketch1.addConstraint(Sketcher.Constraint("Horizontal", 21, 3, 25, 3))
sketch1.addConstraint(Sketcher.Constraint("Horizontal", 17, 3, 29, 3))
sketch1.addConstraint(Sketcher.Constraint("Horizontal", 13, 3, 33, 3))
sketch1.addConstraint(Sketcher.Constraint("Horizontal", 9, 3, 37, 3))
sketch1.addConstraint(Sketcher.Constraint("Horizontal", 3, 3, 43, 3))
sketch1.addConstraint(Sketcher.Constraint("Horizontal", 53, 3, 57, 3))
sketch1.addConstraint(Sketcher.Constraint("Horizontal", 49, 3, 61, 3))
sketch1.addConstraint(Sketcher.Constraint("Vertical", 5, 3, 9, 3))
sketch1.addConstraint(Sketcher.Constraint("Vertical", 1, 3, 13, 3))
sketch1.addConstraint(Sketcher.Constraint("Vertical", 37, 3, 41, 3))
sketch1.addConstraint(Sketcher.Constraint("Vertical", 33, 3, 45, 3))
sketch1.addConstraint(Sketcher.Constraint("Vertical", 29, 3, 49, 3))
sketch1.addConstraint(Sketcher.Constraint("Vertical", 25, 3, 53, 3))
sketch1.addConstraint(Sketcher.Constraint("Vertical", 19, 3, 59, 3))
sketch1.addConstraint(Sketcher.Constraint("Vertical", 65, 3, 0, 2))
sketch1.addConstraint(Sketcher.Constraint("Vertical", 68, 3, 31, 2))
sketch1.addConstraint(Sketcher.Constraint("Equal", 20, 26))
sketch1.addConstraint(Sketcher.Constraint("Equal", 16, 30))
sketch1.addConstraint(Sketcher.Constraint("Equal", 12, 34))
sketch1.addConstraint(Sketcher.Constraint("Equal", 62, 0))
sketch1.addConstraint(Sketcher.Constraint("Equal", 4, 10))
sketch1.addConstraint(Sketcher.Constraint("Equal", 0, 14))
sketch1.addConstraint(Sketcher.Constraint("Equal", 44, 18))
sketch1.addConstraint(Sketcher.Constraint("Equal", 28, 50))
sketch1.addConstraint(Sketcher.Constraint("Equal", 24, 54))
sketch1.addConstraint(Sketcher.Constraint("Radius", 1, Q("0.1 in")))
sketch1.addConstraint(Sketcher.Constraint("Radius", 7, Q("0.25 in")))
sketch1.addConstraint(Sketcher.Constraint("DistanceY", 22, 2, 22, 1, Q("0.15 in")))
sketch1.addConstraint(Sketcher.Constraint("DistanceX", -1, 1, 21, 3, Q("1.7 in")))
sketch1.addConstraint(Sketcher.Constraint("Diameter", 64, Q("5.25 mm")))
sketch1.addConstraint(Sketcher.Constraint("DistanceX", 20, 1, 20, 2, Q("0.575 in")))
sketch1.addConstraint(Sketcher.Constraint("DistanceY", 4, 2, 4, 1, Q("0.7349999 in")))
sketch1.addConstraint(Sketcher.Constraint("DistanceY", -1, 1, 5, 3, Q("4.4399999 in")))
sketch1.addConstraint(Sketcher.Constraint("DistanceX", -1, 1, 3, 3, Q("0.347 in")))
sketch1.addConstraint(Sketcher.Constraint("DistanceX", -1, 1, 31, 3, Q("92.976302 mm")))
pad1 = body.newObject("PartDesign::Pad", "Pad")
pad1.Profile = sketch1
pad1.Length = Q("0.125 in")

doc.recompute()
